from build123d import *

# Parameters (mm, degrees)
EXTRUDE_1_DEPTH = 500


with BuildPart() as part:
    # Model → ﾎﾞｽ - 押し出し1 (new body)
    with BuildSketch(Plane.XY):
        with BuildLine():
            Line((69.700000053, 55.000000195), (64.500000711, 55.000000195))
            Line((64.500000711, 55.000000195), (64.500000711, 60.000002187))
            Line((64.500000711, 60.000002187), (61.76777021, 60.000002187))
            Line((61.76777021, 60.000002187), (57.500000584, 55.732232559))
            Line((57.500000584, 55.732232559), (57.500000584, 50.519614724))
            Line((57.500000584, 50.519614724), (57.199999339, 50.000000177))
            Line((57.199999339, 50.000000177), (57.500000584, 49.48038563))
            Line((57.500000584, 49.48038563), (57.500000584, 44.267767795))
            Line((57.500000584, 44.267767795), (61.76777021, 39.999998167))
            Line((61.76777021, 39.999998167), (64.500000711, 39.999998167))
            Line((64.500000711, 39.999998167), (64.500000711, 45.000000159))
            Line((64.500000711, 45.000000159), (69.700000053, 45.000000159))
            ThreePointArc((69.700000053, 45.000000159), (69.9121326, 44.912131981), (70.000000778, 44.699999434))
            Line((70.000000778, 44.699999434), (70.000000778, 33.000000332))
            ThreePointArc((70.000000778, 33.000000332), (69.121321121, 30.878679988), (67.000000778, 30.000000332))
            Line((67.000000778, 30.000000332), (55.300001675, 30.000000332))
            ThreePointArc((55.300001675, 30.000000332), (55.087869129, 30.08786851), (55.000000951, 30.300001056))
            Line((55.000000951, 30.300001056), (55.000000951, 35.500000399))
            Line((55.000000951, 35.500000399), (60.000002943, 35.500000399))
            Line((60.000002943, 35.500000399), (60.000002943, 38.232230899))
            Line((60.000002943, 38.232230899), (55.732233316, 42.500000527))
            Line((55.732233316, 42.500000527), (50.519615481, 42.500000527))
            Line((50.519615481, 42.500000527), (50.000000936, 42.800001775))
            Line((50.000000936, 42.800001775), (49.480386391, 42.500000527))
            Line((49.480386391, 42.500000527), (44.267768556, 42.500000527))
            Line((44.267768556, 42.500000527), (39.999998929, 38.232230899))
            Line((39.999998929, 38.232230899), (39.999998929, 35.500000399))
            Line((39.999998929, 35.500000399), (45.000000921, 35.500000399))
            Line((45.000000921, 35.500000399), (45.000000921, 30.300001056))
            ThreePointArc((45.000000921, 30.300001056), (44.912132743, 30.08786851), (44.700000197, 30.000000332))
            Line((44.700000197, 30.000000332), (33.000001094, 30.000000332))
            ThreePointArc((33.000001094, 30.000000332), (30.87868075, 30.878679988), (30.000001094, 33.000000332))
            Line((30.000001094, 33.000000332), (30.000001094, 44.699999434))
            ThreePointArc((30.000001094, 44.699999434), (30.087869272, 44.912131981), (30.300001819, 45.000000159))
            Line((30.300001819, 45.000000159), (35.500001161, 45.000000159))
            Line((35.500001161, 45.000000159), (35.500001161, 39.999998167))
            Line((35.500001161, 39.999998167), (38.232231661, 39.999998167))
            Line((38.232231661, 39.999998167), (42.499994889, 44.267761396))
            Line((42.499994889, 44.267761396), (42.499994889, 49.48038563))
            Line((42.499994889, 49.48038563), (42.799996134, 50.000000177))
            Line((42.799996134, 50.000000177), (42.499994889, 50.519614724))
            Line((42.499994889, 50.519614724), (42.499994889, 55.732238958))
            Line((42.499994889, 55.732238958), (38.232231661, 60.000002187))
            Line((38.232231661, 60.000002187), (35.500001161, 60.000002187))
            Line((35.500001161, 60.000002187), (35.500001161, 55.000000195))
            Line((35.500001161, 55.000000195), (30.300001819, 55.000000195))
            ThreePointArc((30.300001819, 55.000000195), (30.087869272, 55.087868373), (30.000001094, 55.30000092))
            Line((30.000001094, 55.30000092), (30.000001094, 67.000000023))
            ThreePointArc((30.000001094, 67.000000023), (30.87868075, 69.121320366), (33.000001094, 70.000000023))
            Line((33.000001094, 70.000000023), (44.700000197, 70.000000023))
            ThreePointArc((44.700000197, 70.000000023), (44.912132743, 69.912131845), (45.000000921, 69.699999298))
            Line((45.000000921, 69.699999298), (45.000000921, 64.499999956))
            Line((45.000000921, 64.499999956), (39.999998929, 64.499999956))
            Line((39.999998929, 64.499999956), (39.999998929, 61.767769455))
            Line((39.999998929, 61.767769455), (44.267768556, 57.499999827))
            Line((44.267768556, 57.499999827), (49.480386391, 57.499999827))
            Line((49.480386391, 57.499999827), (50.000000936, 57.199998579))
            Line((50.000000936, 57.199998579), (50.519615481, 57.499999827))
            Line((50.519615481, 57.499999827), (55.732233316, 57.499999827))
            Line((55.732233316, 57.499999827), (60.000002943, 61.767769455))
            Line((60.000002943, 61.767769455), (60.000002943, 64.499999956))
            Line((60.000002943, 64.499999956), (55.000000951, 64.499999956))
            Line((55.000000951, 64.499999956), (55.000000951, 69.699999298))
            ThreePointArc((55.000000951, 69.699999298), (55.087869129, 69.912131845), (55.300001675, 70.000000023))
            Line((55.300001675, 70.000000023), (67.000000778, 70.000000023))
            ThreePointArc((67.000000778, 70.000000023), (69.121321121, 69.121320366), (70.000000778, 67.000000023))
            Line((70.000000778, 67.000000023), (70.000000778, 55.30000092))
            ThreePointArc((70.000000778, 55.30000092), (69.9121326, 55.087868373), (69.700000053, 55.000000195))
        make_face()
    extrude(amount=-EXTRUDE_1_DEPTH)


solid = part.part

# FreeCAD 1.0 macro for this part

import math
import FreeCAD as App
import Part
import Sketcher
Q = App.Units.Quantity

doc = App.newDocument("Part")
body = doc.addObject("PartDesign::Body", "Body")

sketch1 = body.newObject("Sketcher::SketchObject", "Sketch")
sketch1.AttachmentSupport = (doc.getObject("XY_Plane"), [""])
sketch1.MapMode = "FlatFace"
sketch1.addGeometry(Part.LineSegment(App.Vector(64.5, 55, 0), App.Vector(69.7, 55, 0)), False)
sketch1.addGeometry(Part.ArcOfCircle(Part.Circle(App.Vector(69.7, 55.3, 0), App.Vector(0, 0, 1), 0.3), math.radians(-90), math.radians(0)), False)
sketch1.addGeometry(Part.LineSegment(App.Vector(70, 55.3, 0), App.Vector(70, 67, 0)), False)
sketch1.addGeometry(Part.ArcOfCircle(Part.Circle(App.Vector(67, 67, 0), App.Vector(0, 0, 1), 3), math.radians(0), math.radians(90)), False)
sketch1.addGeometry(Part.LineSegment(App.Vector(67, 70, 0), App.Vector(55.3, 70, 0)), False)
sketch1.addGeometry(Part.ArcOfCircle(Part.Circle(App.Vector(55.3, 69.7, 0), App.Vector(0, 0, 1), 0.3), math.radians(90), math.radians(180)), False)
sketch1.addGeometry(Part.LineSegment(App.Vector(55, 69.7, 0), App.Vector(55, 64.5, 0)), False)
sketch1.addGeometry(Part.LineSegment(App.Vector(55, 64.5, 0), App.Vector(60, 64.5, 0)), False)
sketch1.addGeometry(Part.LineSegment(App.Vector(60, 64.5, 0), App.Vector(60, 61.77, 0)), False)
sketch1.addGeometry(Part.LineSegment(App.Vector(60, 61.77, 0), App.Vector(55.73, 57.5, 0)), False)
sketch1.addGeometry(Part.LineSegment(App.Vector(55.73, 57.5, 0), App.Vector(50.52, 57.5, 0)), False)
sketch1.addGeometry(Part.LineSegment(App.Vector(50.52, 57.5, 0), App.Vector(50, 57.2, 0)), False)
sketch1.addGeometry(Part.LineSegment(App.Vector(50, 57.2, 0), App.Vector(49.48, 57.5, 0)), False)
sketch1.addGeometry(Part.LineSegment(App.Vector(49.48, 57.5, 0), App.Vector(44.27, 57.5, 0)), False)
sketch1.addGeometry(Part.LineSegment(App.Vector(44.27, 57.5, 0), App.Vector(40, 61.77, 0)), False)
sketch1.addGeometry(Part.LineSegment(App.Vector(40, 61.77, 0), App.Vector(40, 64.5, 0)), False)
sketch1.addGeometry(Part.LineSegment(App.Vector(40, 64.5, 0), App.Vector(45, 64.5, 0)), False)
sketch1.addGeometry(Part.LineSegment(App.Vector(45, 64.5, 0), App.Vector(45, 69.7, 0)), False)
sketch1.addGeometry(Part.ArcOfCircle(Part.Circle(App.Vector(44.7, 69.7, 0), App.Vector(0, 0, 1), 0.3), math.radians(0), math.radians(90)), False)
sketch1.addGeometry(Part.LineSegment(App.Vector(44.7, 70, 0), App.Vector(33, 70, 0)), False)
sketch1.addGeometry(Part.ArcOfCircle(Part.Circle(App.Vector(33, 67, 0), App.Vector(0, 0, 1), 3), math.radians(90), math.radians(180)), False)
sketch1.addGeometry(Part.LineSegment(App.Vector(30, 67, 0), App.Vector(30, 55.3, 0)), False)
sketch1.addGeometry(Part.ArcOfCircle(Part.Circle(App.Vector(30.3, 55.3, 0), App.Vector(0, 0, 1), 0.3), math.radians(180), math.radians(270)), False)
sketch1.addGeometry(Part.LineSegment(App.Vector(30.3, 55, 0), App.Vector(35.5, 55, 0)), False)
sketch1.addGeometry(Part.LineSegment(App.Vector(35.5, 55, 0), App.Vector(35.5, 60, 0)), False)
sketch1.addGeometry(Part.LineSegment(App.Vector(35.5, 60, 0), App.Vector(38.23, 60, 0)), False)
sketch1.addGeometry(Part.LineSegment(App.Vector(38.23, 60, 0), App.Vector(42.5, 55.73, 0)), False)
sketch1.addGeometry(Part.LineSegment(App.Vector(42.5, 55.73, 0), App.Vector(42.5, 50.52, 0)), False)
sketch1.addGeometry(Part.LineSegment(App.Vector(42.5, 50.52, 0), App.Vector(42.8, 50, 0)), False)
sketch1.addGeometry(Part.LineSegment(App.Vector(42.8, 50, 0), App.Vector(42.5, 49.48, 0)), False)
sketch1.addGeometry(Part.LineSegment(App.Vector(42.5, 49.48, 0), App.Vector(42.5, 44.27, 0)), False)
sketch1.addGeometry(Part.LineSegment(App.Vector(42.5, 44.27, 0), App.Vector(38.23, 40, 0)), False)
sketch1.addGeometry(Part.LineSegment(App.Vector(38.23, 40, 0), App.Vector(35.5, 40, 0)), False)
sketch1.addGeometry(Part.LineSegment(App.Vector(35.5, 40, 0), App.Vector(35.5, 45, 0)), False)
sketch1.addGeometry(Part.LineSegment(App.Vector(35.5, 45, 0), App.Vector(30.3, 45, 0)), False)
sketch1.addGeometry(Part.ArcOfCircle(Part.Circle(App.Vector(30.3, 44.7, 0), App.Vector(0, 0, 1), 0.3), math.radians(90), math.radians(180)), False)
sketch1.addGeometry(Part.LineSegment(App.Vector(30, 44.7, 0), App.Vector(30, 33, 0)), False)
sketch1.addGeometry(Part.ArcOfCircle(Part.Circle(App.Vector(33, 33, 0), App.Vector(0, 0, 1), 3), math.radians(180), math.radians(270)), False)
sketch1.addGeometry(Part.LineSegment(App.Vector(33, 30, 0), App.Vector(44.7, 30, 0)), False)
sketch1.addGeometry(Part.ArcOfCircle(Part.Circle(App.Vector(44.7, 30.3, 0), App.Vector(0, 0, 1), 0.3), math.radians(-90), math.radians(0)), False)
sketch1.addGeometry(Part.LineSegment(App.Vector(45, 30.3, 0), App.Vector(45, 35.5, 0)), False)
sketch1.addGeometry(Part.LineSegment(App.Vector(45, 35.5, 0), App.Vector(40, 35.5, 0)), False)
sketch1.addGeometry(Part.LineSegment(App.Vector(40, 35.5, 0), App.Vector(40, 38.23, 0)), False)
sketch1.addGeometry(Part.LineSegment(App.Vector(40, 38.23, 0), App.Vector(44.27, 42.5, 0)), False)
sketch1.addGeometry(Part.LineSegment(App.Vector(44.27, 42.5, 0), App.Vector(49.48, 42.5, 0)), False)
sketch1.addGeometry(Part.LineSegment(App.Vector(49.48, 42.5, 0), App.Vector(50, 42.8, 0)), False)
sketch1.addGeometry(Part.LineSegment(App.Vector(50, 42.8, 0), App.Vector(50.52, 42.5, 0)), False)
sketch1.addGeometry(Part.LineSegment(App.Vector(50.52, 42.5, 0), App.Vector(55.73, 42.5, 0)), False)
sketch1.addGeometry(Part.LineSegment(App.Vector(55.73, 42.5, 0), App.Vector(60, 38.23, 0)), False)
sketch1.addGeometry(Part.LineSegment(App.Vector(60, 38.23, 0), App.Vector(60, 35.5, 0)), False)
sketch1.addGeometry(Part.LineSegment(App.Vector(60, 35.5, 0), App.Vector(55, 35.5, 0)), False)
sketch1.addGeometry(Part.LineSegment(App.Vector(55, 35.5, 0), App.Vector(55, 30.3, 0)), False)
sketch1.addGeometry(Part.ArcOfCircle(Part.Circle(App.Vector(55.3, 30.3, 0), App.Vector(0, 0, 1), 0.3), math.radians(-180), math.radians(-90)), False)
sketch1.addGeometry(Part.LineSegment(App.Vector(55.3, 30, 0), App.Vector(67, 30, 0)), False)
sketch1.addGeometry(Part.ArcOfCircle(Part.Circle(App.Vector(67, 33, 0), App.Vector(0, 0, 1), 3), math.radians(-90), math.radians(0)), False)
sketch1.addGeometry(Part.LineSegment(App.Vector(70, 33, 0), App.Vector(70, 44.7, 0)), False)
sketch1.addGeometry(Part.ArcOfCircle(Part.Circle(App.Vector(69.7, 44.7, 0), App.Vector(0, 0, 1), 0.3), math.radians(0), math.radians(90)), False)
sketch1.addGeometry(Part.LineSegment(App.Vector(69.7, 45, 0), App.Vector(64.5, 45, 0)), False)
sketch1.addGeometry(Part.LineSegment(App.Vector(64.5, 45, 0), App.Vector(64.5, 40, 0)), False)
sketch1.addGeometry(Part.LineSegment(App.Vector(64.5, 40, 0), App.Vector(61.77, 40, 0)), False)
sketch1.addGeometry(Part.LineSegment(App.Vector(61.77, 40, 0), App.Vector(57.5, 44.27, 0)), False)
sketch1.addGeometry(Part.LineSegment(App.Vector(57.5, 44.27, 0), App.Vector(57.5, 49.48, 0)), False)
sketch1.addGeometry(Part.LineSegment(App.Vector(57.5, 49.48, 0), App.Vector(57.2, 50, 0)), False)
sketch1.addGeometry(Part.LineSegment(App.Vector(57.2, 50, 0), App.Vector(57.5, 50.52, 0)), False)
sketch1.addGeometry(Part.LineSegment(App.Vector(57.5, 50.52, 0), App.Vector(57.5, 55.73, 0)), False)
sketch1.addGeometry(Part.LineSegment(App.Vector(57.5, 55.73, 0), App.Vector(61.77, 60, 0)), False)
sketch1.addGeometry(Part.LineSegment(App.Vector(61.77, 60, 0), App.Vector(64.5, 60, 0)), False)
sketch1.addGeometry(Part.LineSegment(App.Vector(64.5, 60, 0), App.Vector(64.5, 55, 0)), False)
sketch1.addConstraint(Sketcher.Constraint("Tangent", 0, 2, 1, 1))
sketch1.addConstraint(Sketcher.Constraint("Tangent", 1, 2, 2, 1))
sketch1.addConstraint(Sketcher.Constraint("Tangent", 2, 2, 3, 1))
sketch1.addConstraint(Sketcher.Constraint("Tangent", 3, 2, 4, 1))
sketch1.addConstraint(Sketcher.Constraint("Tangent", 4, 2, 5, 1))
sketch1.addConstraint(Sketcher.Constraint("Tangent", 5, 2, 6, 1))
sketch1.addConstraint(Sketcher.Constraint("Coincident", 6, 2, 7, 1))
sketch1.addConstraint(Sketcher.Constraint("Coincident", 7, 2, 8, 1))
sketch1.addConstraint(Sketcher.Constraint("Coincident", 8, 2, 9, 1))
sketch1.addConstraint(Sketcher.Constraint("Coincident", 9, 2, 10, 1))
sketch1.addConstraint(Sketcher.Constraint("Coincident", 10, 2, 11, 1))
sketch1.addConstraint(Sketcher.Constraint("Coincident", 11, 2, 12, 1))
sketch1.addConstraint(Sketcher.Constraint("Coincident", 12, 2, 13, 1))
sketch1.addConstraint(Sketcher.Constraint("Coincident", 13, 2, 14, 1))
sketch1.addConstraint(Sketcher.Constraint("Coincident", 14, 2, 15, 1))
sketch1.addConstraint(Sketcher.Constraint("Coincident", 15, 2, 16, 1))
sketch1.addConstraint(Sketcher.Constraint("Coincident", 16, 2, 17, 1))
sketch1.addConstraint(Sketcher.Constraint("Tangent", 17, 2, 18, 1))
sketch1.addConstraint(Sketcher.Constraint("Tangent", 18, 2, 19, 1))
sketch1.addConstraint(Sketcher.Constraint("Tangent", 19, 2, 20, 1))
sketch1.addConstraint(Sketcher.Constraint("Tangent", 20, 2, 21, 1))
sketch1.addConstraint(Sketcher.Constraint("Tangent", 21, 2, 22, 1))
sketch1.addConstraint(Sketcher.Constraint("Tangent", 22, 2, 23, 1))
sketch1.addConstraint(Sketcher.Constraint("Coincident", 23, 2, 24, 1))
sketch1.addConstraint(Sketcher.Constraint("Coincident", 24, 2, 25, 1))
sketch1.addConstraint(Sketcher.Constraint("Coincident", 25, 2, 26, 1))
sketch1.addConstraint(Sketcher.Constraint("Coincident", 26, 2, 27, 1))
sketch1.addConstraint(Sketcher.Constraint("Coincident", 27, 2, 28, 1))
sketch1.addConstraint(Sketcher.Constraint("Coincident", 28, 2, 29, 1))
sketch1.addConstraint(Sketcher.Constraint("Coincident", 29, 2, 30, 1))
sketch1.addConstraint(Sketcher.Constraint("Coincident", 30, 2, 31, 1))
sketch1.addConstraint(Sketcher.Constraint("Coincident", 31, 2, 32, 1))
sketch1.addConstraint(Sketcher.Constraint("Coincident", 32, 2, 33, 1))
sketch1.addConstraint(Sketcher.Constraint("Coincident", 33, 2, 34, 1))
sketch1.addConstraint(Sketcher.Constraint("Tangent", 34, 2, 35, 1))
sketch1.addConstraint(Sketcher.Constraint("Tangent", 35, 2, 36, 1))
sketch1.addConstraint(Sketcher.Constraint("Tangent", 36, 2, 37, 1))
sketch1.addConstraint(Sketcher.Constraint("Tangent", 37, 2, 38, 1))
sketch1.addConstraint(Sketcher.Constraint("Tangent", 38, 2, 39, 1))
sketch1.addConstraint(Sketcher.Constraint("Tangent", 39, 2, 40, 1))
sketch1.addConstraint(Sketcher.Constraint("Coincident", 40, 2, 41, 1))
sketch1.addConstraint(Sketcher.Constraint("Coincident", 41, 2, 42, 1))
sketch1.addConstraint(Sketcher.Constraint("Coincident", 42, 2, 43, 1))
sketch1.addConstraint(Sketcher.Constraint("Coincident", 43, 2, 44, 1))
sketch1.addConstraint(Sketcher.Constraint("Coincident", 44, 2, 45, 1))
sketch1.addConstraint(Sketcher.Constraint("Coincident", 45, 2, 46, 1))
sketch1.addConstraint(Sketcher.Constraint("Coincident", 46, 2, 47, 1))
sketch1.addConstraint(Sketcher.Constraint("Coincident", 47, 2, 48, 1))
sketch1.addConstraint(Sketcher.Constraint("Coincident", 48, 2, 49, 1))
sketch1.addConstraint(Sketcher.Constraint("Coincident", 49, 2, 50, 1))
sketch1.addConstraint(Sketcher.Constraint("Coincident", 50, 2, 51, 1))
sketch1.addConstraint(Sketcher.Constraint("Tangent", 51, 2, 52, 1))
sketch1.addConstraint(Sketcher.Constraint("Tangent", 52, 2, 53, 1))
sketch1.addConstraint(Sketcher.Constraint("Tangent", 53, 2, 54, 1))
sketch1.addConstraint(Sketcher.Constraint("Tangent", 54, 2, 55, 1))
sketch1.addConstraint(Sketcher.Constraint("Tangent", 55, 2, 56, 1))
sketch1.addConstraint(Sketcher.Constraint("Tangent", 56, 2, 57, 1))
sketch1.addConstraint(Sketcher.Constraint("Coincident", 57, 2, 58, 1))
sketch1.addConstraint(Sketcher.Constraint("Coincident", 58, 2, 59, 1))
sketch1.addConstraint(Sketcher.Constraint("Coincident", 59, 2, 60, 1))
sketch1.addConstraint(Sketcher.Constraint("Coincident", 60, 2, 61, 1))
sketch1.addConstraint(Sketcher.Constraint("Coincident", 61, 2, 62, 1))
sketch1.addConstraint(Sketcher.Constraint("Coincident", 62, 2, 63, 1))
sketch1.addConstraint(Sketcher.Constraint("Coincident", 63, 2, 64, 1))
sketch1.addConstraint(Sketcher.Constraint("Coincident", 64, 2, 65, 1))
sketch1.addConstraint(Sketcher.Constraint("Coincident", 65, 2, 66, 1))
sketch1.addConstraint(Sketcher.Constraint("Coincident", 66, 2, 67, 1))
sketch1.addConstraint(Sketcher.Constraint("Coincident", 67, 2, 0, 1))
sketch1.addConstraint(Sketcher.Constraint("Horizontal", 0))
sketch1.addConstraint(Sketcher.Constraint("Vertical", 2))
sketch1.addConstraint(Sketcher.Constraint("Horizontal", 4))
sketch1.addConstraint(Sketcher.Constraint("Vertical", 6))
sketch1.addConstraint(Sketcher.Constraint("Horizontal", 7))
sketch1.addConstraint(Sketcher.Constraint("Vertical", 8))
sketch1.addConstraint(Sketcher.Constraint("Horizontal", 10))
sketch1.addConstraint(Sketcher.Constraint("Horizontal", 13))
sketch1.addConstraint(Sketcher.Constraint("Vertical", 15))
sketch1.addConstraint(Sketcher.Constraint("Horizontal", 16))
sketch1.addConstraint(Sketcher.Constraint("Vertical", 17))
sketch1.addConstraint(Sketcher.Constraint("Horizontal", 19))
sketch1.addConstraint(Sketcher.Constraint("Vertical", 21))
sketch1.addConstraint(Sketcher.Constraint("Horizontal", 23))
sketch1.addConstraint(Sketcher.Constraint("Vertical", 24))
sketch1.addConstraint(Sketcher.Constraint("Horizontal", 25))
sketch1.addConstraint(Sketcher.Constraint("Vertical", 27))
sketch1.addConstraint(Sketcher.Constraint("Vertical", 30))
sketch1.addConstraint(Sketcher.Constraint("Horizontal", 32))
sketch1.addConstraint(Sketcher.Constraint("Vertical", 33))
sketch1.addConstraint(Sketcher.Constraint("Horizontal", 34))
sketch1.addConstraint(Sketcher.Constraint("Vertical", 36))
sketch1.addConstraint(Sketcher.Constraint("Horizontal", 38))
sketch1.addConstraint(Sketcher.Constraint("Vertical", 40))
sketch1.addConstraint(Sketcher.Constraint("Horizontal", 41))
sketch1.addConstraint(Sketcher.Constraint("Vertical", 42))
sketch1.addConstraint(Sketcher.Constraint("Horizontal", 44))
sketch1.addConstraint(Sketcher.Constraint("Horizontal", 47))
sketch1.addConstraint(Sketcher.Constraint("Vertical", 49))
sketch1.addConstraint(Sketcher.Constraint("Horizontal", 50))
sketch1.addConstraint(Sketcher.Constraint("Vertical", 51))
sketch1.addConstraint(Sketcher.Constraint("Horizontal", 53))
sketch1.addConstraint(Sketcher.Constraint("Vertical", 55))
sketch1.addConstraint(Sketcher.Constraint("Horizontal", 57))
sketch1.addConstraint(Sketcher.Constraint("Vertical", 58))
sketch1.addConstraint(Sketcher.Constraint("Horizontal", 59))
sketch1.addConstraint(Sketcher.Constraint("Vertical", 61))
sketch1.addConstraint(Sketcher.Constraint("Vertical", 64))
sketch1.addConstraint(Sketcher.Constraint("Horizontal", 66))
sketch1.addConstraint(Sketcher.Constraint("Vertical", 67))
sketch1.addConstraint(Sketcher.Constraint("Equal", 1, 5))
sketch1.addConstraint(Sketcher.Constraint("Equal", 5, 18))
sketch1.addConstraint(Sketcher.Constraint("Equal", 3, 20))
sketch1.addConstraint(Sketcher.Constraint("Equal", 18, 22))
sketch1.addConstraint(Sketcher.Constraint("Equal", 22, 35))
sketch1.addConstraint(Sketcher.Constraint("Equal", 20, 37))
sketch1.addConstraint(Sketcher.Constraint("Equal", 35, 39))
sketch1.addConstraint(Sketcher.Constraint("Equal", 39, 52))
sketch1.addConstraint(Sketcher.Constraint("Equal", 37, 54))
sketch1.addConstraint(Sketcher.Constraint("Equal", 52, 56))
sketch1.addConstraint(Sketcher.Constraint("Perpendicular", 9, 14))
sketch1.addConstraint(Sketcher.Constraint("Parallel", 14, 26))
sketch1.addConstraint(Sketcher.Constraint("Perpendicular", 11, 28))
sketch1.addConstraint(Sketcher.Constraint("Perpendicular", 12, 29))
sketch1.addConstraint(Sketcher.Constraint("Perpendicular", 26, 31))
sketch1.addConstraint(Sketcher.Constraint("Parallel", 31, 43))
sketch1.addConstraint(Sketcher.Constraint("Perpendicular", 28, 45))
sketch1.addConstraint(Sketcher.Constraint("Perpendicular", 29, 46))
sketch1.addConstraint(Sketcher.Constraint("Perpendicular", 43, 48))
sketch1.addConstraint(Sketcher.Constraint("Parallel", 48, 60))
sketch1.addConstraint(Sketcher.Constraint("Perpendicular", 45, 62))
sketch1.addConstraint(Sketcher.Constraint("Perpendicular", 46, 63))
sketch1.addConstraint(Sketcher.Constraint("Perpendicular", 60, 65))
sketch1.addConstraint(Sketcher.Constraint("Horizontal", 5, 3, 18, 3))
sketch1.addConstraint(Sketcher.Constraint("Horizontal", 1, 3, 22, 3))
sketch1.addConstraint(Sketcher.Constraint("Horizontal", 39, 3, 52, 3))
sketch1.addConstraint(Sketcher.Constraint("Horizontal", 35, 3, 56, 3))
sketch1.addConstraint(Sketcher.Constraint("Horizontal", 10, 2, 12, 2))
sketch1.addConstraint(Sketcher.Constraint("Horizontal", 8, 2, 14, 2))
sketch1.addConstraint(Sketcher.Constraint("Horizontal", 7, 2, 15, 2))
sketch1.addConstraint(Sketcher.Constraint("Horizontal", 44, 2, 46, 2))
sketch1.addConstraint(Sketcher.Constraint("Horizontal", 42, 2, 48, 2))
sketch1.addConstraint(Sketcher.Constraint("Horizontal", 41, 2, 49, 2))
sketch1.addConstraint(Sketcher.Constraint("Horizontal", 32, 2, 58, 2))
sketch1.addConstraint(Sketcher.Constraint("Horizontal", 29, 2, 61, 2))
sketch1.addConstraint(Sketcher.Constraint("Horizontal", 28, 2, 62, 2))
sketch1.addConstraint(Sketcher.Constraint("Horizontal", 27, 2, 63, 2))
sketch1.addConstraint(Sketcher.Constraint("Horizontal", 25, 2, 65, 2))
sketch1.addConstraint(Sketcher.Constraint("Vertical", 22, 3, 35, 3))
sketch1.addConstraint(Sketcher.Constraint("Vertical", 18, 3, 39, 3))
sketch1.addConstraint(Sketcher.Constraint("Vertical", 5, 3, 52, 3))
sketch1.addConstraint(Sketcher.Constraint("Vertical", 3, 3, 54, 3))
sketch1.addConstraint(Sketcher.Constraint("Vertical", 27, 2, 29, 2))
sketch1.addConstraint(Sketcher.Constraint("Vertical", 25, 2, 31, 2))
sketch1.addConstraint(Sketcher.Constraint("Vertical", 24, 2, 32, 2))
sketch1.addConstraint(Sketcher.Constraint("Vertical", 15, 2, 41, 2))
sketch1.addConstraint(Sketcher.Constraint("Vertical", 13, 2, 43, 2))
sketch1.addConstraint(Sketcher.Constraint("Vertical", 12, 2, 44, 2))
sketch1.addConstraint(Sketcher.Constraint("Vertical", 11, 2, 45, 2))
sketch1.addConstraint(Sketcher.Constraint("Vertical", 10, 2, 46, 2))
sketch1.addConstraint(Sketcher.Constraint("Vertical", 9, 2, 47, 2))
sketch1.addConstraint(Sketcher.Constraint("Vertical", 8, 2, 48, 2))
sketch1.addConstraint(Sketcher.Constraint("Vertical", 59, 2, 65, 2))
sketch1.addConstraint(Sketcher.Constraint("Vertical", 58, 2, 66, 2))
sketch1.addConstraint(Sketcher.Constraint("Equal", 10, 13))
sketch1.addConstraint(Sketcher.Constraint("Equal", 7, 16))
sketch1.addConstraint(Sketcher.Constraint("Equal", 4, 19))
sketch1.addConstraint(Sketcher.Constraint("Equal", 0, 23))
sketch1.addConstraint(Sketcher.Constraint("Equal", 32, 59))
sketch1.addConstraint(Sketcher.Constraint("Equal", 53, 2))
sketch1.addConstraint(Sketcher.Constraint("Equal", 57, 6))
sketch1.addConstraint(Sketcher.Constraint("Equal", 66, 8))
sketch1.addConstraint(Sketcher.Constraint("Equal", 50, 24))
sketch1.addConstraint(Sketcher.Constraint("Equal", 27, 30))
sketch1.addConstraint(Sketcher.Constraint("Equal", 24, 33))
sketch1.addConstraint(Sketcher.Constraint("Equal", 21, 36))
sketch1.addConstraint(Sketcher.Constraint("Equal", 17, 40))
sketch1.addConstraint(Sketcher.Constraint("Equal", 15, 42))
sketch1.addConstraint(Sketcher.Constraint("Equal", 47, 61))
sketch1.addConstraint(Sketcher.Constraint("Equal", 12, 28))
sketch1.addConstraint(Sketcher.Constraint("Equal", 48, 60))
sketch1.addConstraint(Sketcher.Constraint("Radius", 3, Q("3 mm")))
sketch1.addConstraint(Sketcher.Constraint("Radius", 1, Q("0.300001 mm")))
sketch1.addConstraint(Sketcher.Constraint("DistanceX", 7, 1, 7, 2, Q("5.000002 mm")))
sketch1.addConstraint(Sketcher.Constraint("DistanceX", 0, 1, 0, 2, Q("5.199999 mm")))
sketch1.addConstraint(Sketcher.Constraint("DistanceX", 4, 2, 4, 1, Q("11.699999 mm")))
sketch1.addConstraint(Sketcher.Constraint("DistanceX", -1, 1, 3, 3, Q("67.000001 mm")))
sketch1.addConstraint(Sketcher.Constraint("DistanceY", -1, 1, 3, 3, Q("67 mm")))
sketch1.addConstraint(Sketcher.Constraint("DistanceX", -1, 1, 20, 3, Q("33.000001 mm")))
sketch1.addConstraint(Sketcher.Constraint("Distance", 11, Q("0.6 mm")))
sketch1.addConstraint(Sketcher.Constraint("DistanceY", -1, 1, 9, 2, Q("57.5 mm")))
sketch1.addConstraint(Sketcher.Constraint("DistanceY", -1, 1, 11, 2, Q("57.199999 mm")))
sketch1.addConstraint(Sketcher.Constraint("DistanceX", 25, 1, 25, 2, Q("2.732231 mm")))
sketch1.addConstraint(Sketcher.Constraint("Distance", 26, Q("6.035529 mm")))
pad1 = body.newObject("PartDesign::Pad", "Pad")
pad1.Profile = sketch1
pad1.Length = 500
pad1.Reversed = True

doc.recompute()
